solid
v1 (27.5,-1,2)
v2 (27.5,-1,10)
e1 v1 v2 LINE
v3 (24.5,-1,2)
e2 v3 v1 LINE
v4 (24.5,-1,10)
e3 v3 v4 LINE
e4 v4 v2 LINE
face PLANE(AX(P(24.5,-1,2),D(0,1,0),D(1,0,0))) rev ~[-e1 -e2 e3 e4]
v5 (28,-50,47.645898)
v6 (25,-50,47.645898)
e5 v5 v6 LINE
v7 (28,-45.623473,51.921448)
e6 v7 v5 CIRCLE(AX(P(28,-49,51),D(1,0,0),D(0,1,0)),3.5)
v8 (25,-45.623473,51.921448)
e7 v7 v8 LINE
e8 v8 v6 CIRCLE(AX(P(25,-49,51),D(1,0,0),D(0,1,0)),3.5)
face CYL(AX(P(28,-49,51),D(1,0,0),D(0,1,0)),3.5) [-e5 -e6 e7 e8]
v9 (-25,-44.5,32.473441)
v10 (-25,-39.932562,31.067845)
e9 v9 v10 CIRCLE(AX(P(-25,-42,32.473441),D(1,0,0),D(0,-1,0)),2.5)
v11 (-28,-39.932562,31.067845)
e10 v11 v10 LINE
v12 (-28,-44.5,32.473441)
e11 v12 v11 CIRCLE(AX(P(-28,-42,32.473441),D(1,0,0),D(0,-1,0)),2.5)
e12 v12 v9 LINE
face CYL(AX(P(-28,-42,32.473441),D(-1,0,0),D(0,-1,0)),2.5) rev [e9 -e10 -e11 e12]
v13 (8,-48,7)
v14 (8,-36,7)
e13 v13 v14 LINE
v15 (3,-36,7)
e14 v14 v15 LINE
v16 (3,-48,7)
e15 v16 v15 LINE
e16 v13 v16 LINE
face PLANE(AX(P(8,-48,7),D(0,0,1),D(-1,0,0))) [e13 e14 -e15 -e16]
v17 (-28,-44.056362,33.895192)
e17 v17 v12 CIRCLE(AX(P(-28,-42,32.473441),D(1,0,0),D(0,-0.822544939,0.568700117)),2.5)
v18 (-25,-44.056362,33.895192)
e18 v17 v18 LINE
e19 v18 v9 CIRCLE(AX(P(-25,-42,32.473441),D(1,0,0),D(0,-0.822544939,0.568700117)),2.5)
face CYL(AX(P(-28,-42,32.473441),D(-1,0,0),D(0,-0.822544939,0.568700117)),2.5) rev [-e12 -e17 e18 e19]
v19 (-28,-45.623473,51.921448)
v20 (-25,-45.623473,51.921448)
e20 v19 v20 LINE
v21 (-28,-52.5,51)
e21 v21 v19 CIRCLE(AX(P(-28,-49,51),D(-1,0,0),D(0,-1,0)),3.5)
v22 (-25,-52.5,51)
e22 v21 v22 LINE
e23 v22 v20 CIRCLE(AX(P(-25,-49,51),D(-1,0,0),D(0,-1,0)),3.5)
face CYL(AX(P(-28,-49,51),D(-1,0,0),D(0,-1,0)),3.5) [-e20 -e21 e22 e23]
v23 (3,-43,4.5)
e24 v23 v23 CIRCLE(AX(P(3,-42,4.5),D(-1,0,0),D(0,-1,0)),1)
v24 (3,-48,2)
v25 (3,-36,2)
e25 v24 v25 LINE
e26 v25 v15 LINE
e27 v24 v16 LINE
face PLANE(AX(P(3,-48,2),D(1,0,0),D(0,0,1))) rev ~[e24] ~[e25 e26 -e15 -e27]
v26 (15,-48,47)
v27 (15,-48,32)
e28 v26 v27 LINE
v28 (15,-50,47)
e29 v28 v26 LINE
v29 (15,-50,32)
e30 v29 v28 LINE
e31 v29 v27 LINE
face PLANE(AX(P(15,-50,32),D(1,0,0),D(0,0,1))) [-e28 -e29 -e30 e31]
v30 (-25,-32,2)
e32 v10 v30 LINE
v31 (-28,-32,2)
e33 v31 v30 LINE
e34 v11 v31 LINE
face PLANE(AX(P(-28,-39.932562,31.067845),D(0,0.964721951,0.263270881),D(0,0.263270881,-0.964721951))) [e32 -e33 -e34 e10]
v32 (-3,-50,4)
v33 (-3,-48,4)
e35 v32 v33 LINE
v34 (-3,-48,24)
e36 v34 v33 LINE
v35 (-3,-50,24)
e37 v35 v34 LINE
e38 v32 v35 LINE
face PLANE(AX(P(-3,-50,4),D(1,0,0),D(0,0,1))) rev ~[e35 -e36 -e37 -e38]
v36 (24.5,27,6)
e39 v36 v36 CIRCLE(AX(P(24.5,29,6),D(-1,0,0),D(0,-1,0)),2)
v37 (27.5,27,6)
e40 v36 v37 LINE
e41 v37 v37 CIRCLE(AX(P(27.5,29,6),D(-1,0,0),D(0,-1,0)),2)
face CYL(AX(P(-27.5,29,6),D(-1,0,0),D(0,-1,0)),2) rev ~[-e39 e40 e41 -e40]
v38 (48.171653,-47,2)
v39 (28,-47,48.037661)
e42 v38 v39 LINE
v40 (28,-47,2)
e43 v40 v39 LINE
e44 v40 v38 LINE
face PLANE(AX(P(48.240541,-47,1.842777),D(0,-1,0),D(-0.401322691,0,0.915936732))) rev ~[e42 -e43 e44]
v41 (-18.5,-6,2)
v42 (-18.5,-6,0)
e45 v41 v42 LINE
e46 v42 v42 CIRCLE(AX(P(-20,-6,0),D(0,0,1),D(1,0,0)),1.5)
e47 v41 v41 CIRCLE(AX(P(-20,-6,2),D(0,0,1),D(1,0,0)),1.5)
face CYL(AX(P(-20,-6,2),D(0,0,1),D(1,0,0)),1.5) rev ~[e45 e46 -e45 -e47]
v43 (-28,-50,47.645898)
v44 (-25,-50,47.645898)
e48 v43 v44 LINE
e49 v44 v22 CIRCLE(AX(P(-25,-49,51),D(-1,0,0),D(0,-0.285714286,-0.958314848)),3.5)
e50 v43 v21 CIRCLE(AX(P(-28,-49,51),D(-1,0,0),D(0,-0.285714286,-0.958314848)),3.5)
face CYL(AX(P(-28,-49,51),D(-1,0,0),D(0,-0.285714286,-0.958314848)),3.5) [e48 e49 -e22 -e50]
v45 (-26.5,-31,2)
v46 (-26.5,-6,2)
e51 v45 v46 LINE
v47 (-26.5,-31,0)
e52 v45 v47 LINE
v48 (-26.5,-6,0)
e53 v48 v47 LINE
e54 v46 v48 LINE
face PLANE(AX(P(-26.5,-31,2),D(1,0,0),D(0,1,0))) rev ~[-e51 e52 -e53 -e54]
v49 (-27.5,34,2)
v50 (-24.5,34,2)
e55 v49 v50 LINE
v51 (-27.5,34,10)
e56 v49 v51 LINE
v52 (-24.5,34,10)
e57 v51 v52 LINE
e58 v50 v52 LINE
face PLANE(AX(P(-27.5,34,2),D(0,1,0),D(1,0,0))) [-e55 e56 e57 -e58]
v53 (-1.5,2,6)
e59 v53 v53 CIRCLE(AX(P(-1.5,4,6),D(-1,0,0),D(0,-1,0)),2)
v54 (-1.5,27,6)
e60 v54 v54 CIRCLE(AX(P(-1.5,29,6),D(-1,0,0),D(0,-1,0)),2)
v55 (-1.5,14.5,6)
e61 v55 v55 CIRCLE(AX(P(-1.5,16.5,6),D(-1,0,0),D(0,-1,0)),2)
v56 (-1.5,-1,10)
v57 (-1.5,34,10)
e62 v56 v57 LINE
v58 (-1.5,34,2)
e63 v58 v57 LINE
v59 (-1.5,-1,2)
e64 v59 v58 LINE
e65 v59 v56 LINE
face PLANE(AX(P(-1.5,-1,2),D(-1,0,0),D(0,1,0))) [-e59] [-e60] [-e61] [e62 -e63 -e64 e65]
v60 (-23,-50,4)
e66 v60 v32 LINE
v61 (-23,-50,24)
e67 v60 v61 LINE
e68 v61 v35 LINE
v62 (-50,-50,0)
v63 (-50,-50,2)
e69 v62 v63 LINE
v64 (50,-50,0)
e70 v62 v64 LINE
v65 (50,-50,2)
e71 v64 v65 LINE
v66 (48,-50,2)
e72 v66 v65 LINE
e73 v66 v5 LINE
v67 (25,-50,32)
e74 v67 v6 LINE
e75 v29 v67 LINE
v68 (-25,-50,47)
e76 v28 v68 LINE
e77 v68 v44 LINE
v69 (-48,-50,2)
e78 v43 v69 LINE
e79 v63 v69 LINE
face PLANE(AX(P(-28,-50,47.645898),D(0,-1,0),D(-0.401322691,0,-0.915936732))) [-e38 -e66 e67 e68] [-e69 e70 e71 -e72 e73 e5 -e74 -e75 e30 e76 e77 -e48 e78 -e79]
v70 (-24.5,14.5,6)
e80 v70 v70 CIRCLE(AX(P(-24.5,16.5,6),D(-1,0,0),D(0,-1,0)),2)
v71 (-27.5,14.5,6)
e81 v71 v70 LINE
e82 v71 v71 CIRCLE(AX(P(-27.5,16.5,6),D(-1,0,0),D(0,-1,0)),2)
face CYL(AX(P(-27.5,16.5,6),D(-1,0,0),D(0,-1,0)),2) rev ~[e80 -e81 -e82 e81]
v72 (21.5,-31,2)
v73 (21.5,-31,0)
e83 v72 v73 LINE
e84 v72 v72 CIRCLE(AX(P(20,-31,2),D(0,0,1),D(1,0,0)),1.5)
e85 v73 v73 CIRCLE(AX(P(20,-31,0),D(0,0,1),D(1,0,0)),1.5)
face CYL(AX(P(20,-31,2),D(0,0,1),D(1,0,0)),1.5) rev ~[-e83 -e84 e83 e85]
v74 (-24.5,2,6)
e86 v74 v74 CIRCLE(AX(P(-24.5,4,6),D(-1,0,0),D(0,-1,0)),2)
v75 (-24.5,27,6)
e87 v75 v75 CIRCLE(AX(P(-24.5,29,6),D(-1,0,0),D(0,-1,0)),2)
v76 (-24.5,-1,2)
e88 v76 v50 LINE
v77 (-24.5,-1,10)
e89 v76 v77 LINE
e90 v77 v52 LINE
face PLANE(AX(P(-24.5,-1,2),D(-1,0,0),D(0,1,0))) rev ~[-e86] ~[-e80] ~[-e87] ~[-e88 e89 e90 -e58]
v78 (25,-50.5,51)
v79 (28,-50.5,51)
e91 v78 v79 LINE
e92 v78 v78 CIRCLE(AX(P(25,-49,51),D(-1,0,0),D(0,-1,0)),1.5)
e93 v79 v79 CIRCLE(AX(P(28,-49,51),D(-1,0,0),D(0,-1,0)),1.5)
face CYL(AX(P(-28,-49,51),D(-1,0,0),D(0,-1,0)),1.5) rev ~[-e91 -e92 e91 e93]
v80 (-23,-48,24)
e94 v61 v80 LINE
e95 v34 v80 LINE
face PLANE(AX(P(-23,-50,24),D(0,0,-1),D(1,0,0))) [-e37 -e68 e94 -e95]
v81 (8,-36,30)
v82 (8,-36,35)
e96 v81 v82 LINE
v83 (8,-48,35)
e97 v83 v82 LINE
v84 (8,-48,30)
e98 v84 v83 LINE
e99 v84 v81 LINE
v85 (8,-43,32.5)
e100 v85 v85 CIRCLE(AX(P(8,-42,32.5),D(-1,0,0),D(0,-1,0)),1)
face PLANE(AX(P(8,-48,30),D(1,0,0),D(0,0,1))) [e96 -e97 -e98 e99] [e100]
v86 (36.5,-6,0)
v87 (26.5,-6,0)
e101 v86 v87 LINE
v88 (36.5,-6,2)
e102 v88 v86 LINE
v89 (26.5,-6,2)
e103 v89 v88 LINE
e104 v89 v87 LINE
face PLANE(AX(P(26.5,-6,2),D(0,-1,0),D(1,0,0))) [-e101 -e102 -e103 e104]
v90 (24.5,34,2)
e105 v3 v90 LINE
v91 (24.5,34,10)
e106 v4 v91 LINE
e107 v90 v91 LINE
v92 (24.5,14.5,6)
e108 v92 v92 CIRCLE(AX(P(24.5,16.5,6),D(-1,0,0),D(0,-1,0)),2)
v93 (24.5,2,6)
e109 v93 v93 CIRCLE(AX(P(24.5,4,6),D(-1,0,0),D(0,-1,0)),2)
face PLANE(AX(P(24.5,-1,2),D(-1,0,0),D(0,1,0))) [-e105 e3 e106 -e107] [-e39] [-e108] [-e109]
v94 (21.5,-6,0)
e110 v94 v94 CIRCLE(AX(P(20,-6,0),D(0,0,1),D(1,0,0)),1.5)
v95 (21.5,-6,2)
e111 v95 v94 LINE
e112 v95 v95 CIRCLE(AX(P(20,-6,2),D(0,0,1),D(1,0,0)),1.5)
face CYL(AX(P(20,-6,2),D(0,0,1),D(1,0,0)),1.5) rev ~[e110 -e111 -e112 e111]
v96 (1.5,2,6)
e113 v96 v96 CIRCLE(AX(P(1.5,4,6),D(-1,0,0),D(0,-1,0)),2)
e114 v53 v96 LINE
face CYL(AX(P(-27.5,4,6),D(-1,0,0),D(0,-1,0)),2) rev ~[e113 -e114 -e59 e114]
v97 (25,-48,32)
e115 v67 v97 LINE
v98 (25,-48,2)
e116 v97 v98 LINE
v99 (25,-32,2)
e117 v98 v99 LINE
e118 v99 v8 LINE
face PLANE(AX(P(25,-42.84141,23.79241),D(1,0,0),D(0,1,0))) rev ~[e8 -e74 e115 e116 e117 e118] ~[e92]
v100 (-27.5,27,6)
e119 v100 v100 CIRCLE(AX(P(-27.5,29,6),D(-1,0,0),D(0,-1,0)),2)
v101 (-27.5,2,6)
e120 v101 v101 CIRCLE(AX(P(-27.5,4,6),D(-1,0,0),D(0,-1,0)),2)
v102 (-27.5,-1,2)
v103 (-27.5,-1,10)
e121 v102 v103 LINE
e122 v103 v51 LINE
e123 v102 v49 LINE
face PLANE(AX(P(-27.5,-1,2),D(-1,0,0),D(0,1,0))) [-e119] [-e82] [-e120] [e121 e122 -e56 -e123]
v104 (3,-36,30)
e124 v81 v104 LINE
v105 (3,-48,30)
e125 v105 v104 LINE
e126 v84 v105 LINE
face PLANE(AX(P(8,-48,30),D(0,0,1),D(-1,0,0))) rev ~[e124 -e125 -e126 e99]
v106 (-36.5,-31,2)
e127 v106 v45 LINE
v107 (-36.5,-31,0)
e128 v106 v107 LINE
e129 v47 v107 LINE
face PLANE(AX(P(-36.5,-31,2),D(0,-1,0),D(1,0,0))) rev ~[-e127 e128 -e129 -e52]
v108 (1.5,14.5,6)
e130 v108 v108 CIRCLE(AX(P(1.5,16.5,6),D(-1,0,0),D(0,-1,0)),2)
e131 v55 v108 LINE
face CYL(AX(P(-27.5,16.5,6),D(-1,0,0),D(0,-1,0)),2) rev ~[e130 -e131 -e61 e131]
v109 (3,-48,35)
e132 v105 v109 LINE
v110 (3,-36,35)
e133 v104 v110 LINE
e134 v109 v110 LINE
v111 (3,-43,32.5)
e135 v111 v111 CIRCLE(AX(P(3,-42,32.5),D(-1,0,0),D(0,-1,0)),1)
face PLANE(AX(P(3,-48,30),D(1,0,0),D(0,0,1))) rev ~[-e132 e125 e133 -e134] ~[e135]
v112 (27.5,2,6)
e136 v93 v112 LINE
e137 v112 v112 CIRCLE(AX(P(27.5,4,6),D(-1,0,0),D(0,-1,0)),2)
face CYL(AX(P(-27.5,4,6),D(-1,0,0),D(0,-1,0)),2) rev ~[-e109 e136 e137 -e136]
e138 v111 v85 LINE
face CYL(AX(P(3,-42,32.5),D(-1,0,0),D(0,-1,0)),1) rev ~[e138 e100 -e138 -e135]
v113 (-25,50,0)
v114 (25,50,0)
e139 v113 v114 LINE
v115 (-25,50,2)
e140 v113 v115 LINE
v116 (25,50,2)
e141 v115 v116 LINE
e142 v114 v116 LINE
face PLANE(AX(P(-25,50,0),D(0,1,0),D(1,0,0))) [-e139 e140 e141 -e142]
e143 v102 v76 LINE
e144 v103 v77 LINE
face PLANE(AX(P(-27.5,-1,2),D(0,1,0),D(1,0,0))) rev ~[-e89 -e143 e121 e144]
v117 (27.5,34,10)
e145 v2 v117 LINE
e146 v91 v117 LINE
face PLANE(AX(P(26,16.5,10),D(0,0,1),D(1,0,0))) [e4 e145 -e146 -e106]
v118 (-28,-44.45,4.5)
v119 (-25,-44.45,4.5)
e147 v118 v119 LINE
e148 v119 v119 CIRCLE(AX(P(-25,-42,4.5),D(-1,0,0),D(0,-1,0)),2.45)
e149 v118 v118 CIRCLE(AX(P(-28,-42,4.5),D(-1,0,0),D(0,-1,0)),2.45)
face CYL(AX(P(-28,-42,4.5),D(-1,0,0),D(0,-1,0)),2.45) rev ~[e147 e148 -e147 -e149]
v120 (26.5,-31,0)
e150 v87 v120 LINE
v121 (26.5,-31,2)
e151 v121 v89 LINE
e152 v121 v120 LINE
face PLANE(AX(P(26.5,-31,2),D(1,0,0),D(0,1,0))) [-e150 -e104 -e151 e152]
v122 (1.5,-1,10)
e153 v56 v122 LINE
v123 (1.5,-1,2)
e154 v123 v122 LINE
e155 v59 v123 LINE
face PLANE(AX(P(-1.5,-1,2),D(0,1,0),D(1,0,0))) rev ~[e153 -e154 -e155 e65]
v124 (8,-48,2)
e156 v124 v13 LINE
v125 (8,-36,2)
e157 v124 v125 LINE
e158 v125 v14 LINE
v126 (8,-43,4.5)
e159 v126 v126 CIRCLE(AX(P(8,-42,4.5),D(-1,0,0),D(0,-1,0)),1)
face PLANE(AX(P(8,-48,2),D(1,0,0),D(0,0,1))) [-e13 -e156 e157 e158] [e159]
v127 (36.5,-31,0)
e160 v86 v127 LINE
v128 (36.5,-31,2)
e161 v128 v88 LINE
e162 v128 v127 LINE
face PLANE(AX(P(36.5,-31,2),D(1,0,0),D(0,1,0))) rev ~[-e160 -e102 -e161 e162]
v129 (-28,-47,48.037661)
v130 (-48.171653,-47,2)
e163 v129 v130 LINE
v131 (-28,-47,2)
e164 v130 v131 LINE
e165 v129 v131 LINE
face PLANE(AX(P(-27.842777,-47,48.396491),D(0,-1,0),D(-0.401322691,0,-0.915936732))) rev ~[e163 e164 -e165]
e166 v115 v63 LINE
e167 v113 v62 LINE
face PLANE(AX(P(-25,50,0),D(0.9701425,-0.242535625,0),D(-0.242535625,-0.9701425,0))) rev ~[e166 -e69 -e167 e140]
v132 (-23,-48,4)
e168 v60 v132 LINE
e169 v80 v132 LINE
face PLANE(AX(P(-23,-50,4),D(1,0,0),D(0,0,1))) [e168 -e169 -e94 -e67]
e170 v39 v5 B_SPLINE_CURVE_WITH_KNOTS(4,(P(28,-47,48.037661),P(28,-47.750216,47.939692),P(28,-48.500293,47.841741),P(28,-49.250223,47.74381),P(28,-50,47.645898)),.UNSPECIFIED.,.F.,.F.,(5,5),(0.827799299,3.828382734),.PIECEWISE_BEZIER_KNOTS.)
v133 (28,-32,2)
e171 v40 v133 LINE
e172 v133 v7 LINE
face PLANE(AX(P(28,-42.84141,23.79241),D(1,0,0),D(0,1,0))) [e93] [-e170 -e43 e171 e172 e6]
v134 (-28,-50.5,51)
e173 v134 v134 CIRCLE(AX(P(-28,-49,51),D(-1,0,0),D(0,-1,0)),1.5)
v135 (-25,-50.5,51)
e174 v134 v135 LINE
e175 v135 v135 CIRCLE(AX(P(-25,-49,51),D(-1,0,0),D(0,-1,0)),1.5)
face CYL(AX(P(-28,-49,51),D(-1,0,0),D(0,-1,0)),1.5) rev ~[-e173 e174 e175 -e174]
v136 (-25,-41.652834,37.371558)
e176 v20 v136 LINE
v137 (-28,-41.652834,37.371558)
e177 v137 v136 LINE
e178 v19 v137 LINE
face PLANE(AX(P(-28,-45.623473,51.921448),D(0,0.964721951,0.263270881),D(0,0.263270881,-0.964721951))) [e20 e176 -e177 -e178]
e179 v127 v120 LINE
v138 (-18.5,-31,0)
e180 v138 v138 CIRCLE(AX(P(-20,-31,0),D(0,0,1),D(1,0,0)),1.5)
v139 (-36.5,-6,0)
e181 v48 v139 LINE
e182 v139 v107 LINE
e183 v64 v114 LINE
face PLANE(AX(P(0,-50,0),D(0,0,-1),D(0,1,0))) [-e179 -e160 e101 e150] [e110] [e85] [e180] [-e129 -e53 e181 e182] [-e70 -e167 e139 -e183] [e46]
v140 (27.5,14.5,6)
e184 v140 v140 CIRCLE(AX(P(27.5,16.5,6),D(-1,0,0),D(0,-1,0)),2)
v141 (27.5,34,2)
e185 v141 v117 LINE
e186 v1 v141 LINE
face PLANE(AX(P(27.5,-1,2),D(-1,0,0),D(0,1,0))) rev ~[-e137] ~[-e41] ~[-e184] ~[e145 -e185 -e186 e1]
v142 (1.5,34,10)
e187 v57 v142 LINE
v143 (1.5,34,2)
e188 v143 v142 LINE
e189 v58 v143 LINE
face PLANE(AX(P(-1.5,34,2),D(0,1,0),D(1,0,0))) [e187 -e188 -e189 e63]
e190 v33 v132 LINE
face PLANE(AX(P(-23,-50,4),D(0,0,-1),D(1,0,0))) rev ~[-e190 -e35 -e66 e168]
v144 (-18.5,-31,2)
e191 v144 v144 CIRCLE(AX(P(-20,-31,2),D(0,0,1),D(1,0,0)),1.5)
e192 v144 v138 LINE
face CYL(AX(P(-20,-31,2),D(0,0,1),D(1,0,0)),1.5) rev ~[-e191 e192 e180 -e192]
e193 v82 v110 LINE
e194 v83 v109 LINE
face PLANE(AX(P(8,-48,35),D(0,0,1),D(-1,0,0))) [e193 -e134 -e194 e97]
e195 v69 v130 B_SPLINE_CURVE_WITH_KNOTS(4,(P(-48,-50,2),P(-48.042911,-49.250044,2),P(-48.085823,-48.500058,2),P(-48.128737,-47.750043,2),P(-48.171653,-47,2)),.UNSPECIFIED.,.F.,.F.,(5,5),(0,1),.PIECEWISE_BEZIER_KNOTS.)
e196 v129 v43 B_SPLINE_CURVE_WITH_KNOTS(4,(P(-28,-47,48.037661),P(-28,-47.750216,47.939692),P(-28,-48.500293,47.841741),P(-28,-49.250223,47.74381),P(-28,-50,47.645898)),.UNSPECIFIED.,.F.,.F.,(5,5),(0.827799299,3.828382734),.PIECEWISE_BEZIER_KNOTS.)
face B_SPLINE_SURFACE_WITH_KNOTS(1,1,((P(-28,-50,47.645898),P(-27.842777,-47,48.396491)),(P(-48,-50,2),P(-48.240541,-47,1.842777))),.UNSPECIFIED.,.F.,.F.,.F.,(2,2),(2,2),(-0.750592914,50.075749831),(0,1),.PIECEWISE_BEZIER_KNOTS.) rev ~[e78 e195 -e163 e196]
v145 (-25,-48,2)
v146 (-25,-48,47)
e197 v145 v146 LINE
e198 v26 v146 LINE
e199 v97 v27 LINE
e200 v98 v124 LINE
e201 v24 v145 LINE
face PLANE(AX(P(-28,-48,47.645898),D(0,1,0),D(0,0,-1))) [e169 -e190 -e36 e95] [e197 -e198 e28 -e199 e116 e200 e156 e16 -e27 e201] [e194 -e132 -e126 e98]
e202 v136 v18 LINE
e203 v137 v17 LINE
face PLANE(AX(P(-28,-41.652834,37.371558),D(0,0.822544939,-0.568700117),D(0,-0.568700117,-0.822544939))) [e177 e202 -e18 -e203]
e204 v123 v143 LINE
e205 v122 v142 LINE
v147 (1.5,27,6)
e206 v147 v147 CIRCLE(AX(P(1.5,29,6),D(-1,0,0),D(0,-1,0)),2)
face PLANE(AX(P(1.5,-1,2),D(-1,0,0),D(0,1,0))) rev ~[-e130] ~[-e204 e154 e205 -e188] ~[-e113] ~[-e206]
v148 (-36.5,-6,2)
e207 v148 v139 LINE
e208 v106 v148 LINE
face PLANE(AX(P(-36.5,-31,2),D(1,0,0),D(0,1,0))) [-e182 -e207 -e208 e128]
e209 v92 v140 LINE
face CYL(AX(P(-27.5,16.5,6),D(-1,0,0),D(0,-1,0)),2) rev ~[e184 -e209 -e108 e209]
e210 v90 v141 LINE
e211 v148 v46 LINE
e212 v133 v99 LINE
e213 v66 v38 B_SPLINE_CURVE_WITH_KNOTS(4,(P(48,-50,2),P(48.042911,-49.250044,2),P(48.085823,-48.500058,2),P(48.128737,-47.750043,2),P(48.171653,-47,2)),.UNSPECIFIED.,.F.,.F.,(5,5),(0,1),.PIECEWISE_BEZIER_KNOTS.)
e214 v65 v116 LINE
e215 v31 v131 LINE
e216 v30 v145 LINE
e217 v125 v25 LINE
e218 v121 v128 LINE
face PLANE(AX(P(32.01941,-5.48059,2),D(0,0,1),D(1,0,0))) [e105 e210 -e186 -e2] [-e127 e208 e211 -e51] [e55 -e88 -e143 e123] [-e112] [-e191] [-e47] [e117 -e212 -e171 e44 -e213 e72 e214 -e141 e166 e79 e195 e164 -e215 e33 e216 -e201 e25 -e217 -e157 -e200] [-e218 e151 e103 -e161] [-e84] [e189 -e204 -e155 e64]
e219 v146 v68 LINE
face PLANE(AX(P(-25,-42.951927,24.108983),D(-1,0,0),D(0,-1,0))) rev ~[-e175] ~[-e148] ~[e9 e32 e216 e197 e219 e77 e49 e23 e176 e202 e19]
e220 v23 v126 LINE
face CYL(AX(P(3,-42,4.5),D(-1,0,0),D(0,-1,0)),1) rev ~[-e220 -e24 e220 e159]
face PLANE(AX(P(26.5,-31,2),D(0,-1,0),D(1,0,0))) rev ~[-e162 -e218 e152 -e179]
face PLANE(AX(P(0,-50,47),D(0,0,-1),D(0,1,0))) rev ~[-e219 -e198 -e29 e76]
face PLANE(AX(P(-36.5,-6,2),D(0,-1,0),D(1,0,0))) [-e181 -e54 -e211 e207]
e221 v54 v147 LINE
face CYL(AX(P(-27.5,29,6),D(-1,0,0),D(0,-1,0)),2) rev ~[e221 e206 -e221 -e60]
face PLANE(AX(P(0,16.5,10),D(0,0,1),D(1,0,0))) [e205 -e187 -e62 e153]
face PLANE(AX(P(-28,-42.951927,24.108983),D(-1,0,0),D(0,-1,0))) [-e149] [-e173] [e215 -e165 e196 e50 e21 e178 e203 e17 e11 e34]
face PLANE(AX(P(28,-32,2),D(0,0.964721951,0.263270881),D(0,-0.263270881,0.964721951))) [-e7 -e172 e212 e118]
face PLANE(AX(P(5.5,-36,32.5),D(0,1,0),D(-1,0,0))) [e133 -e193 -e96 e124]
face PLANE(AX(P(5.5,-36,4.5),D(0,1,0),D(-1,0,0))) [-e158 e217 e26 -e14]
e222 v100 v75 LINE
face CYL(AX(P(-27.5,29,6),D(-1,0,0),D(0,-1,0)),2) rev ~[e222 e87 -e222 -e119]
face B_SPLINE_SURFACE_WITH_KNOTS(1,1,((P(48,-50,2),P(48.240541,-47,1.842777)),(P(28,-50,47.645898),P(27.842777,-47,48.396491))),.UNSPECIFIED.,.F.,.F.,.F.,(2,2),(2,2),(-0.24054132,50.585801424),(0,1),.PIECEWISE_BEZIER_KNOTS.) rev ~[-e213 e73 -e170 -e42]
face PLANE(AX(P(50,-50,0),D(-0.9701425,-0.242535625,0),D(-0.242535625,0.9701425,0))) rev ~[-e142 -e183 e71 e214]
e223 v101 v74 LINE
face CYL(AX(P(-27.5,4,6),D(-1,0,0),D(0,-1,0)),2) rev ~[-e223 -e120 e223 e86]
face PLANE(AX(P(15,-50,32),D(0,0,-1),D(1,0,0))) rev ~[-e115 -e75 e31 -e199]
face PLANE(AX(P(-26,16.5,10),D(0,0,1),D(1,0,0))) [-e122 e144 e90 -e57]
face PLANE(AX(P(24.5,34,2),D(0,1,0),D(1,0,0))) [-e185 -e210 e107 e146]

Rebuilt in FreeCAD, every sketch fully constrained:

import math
import FreeCAD as App
import Part
import Sketcher
from FreeCAD import Vector

doc = App.newDocument("Part")
params = doc.addObject("Spreadsheet::Sheet", "Params")
for row, (alias, value) in enumerate([
    ("sketch1_width", "50 mm"),
    ("sketch1_width2", "100 mm"),
    ("pad1_length", "2 mm"),
    ("sketch2_width", "2 mm"),
    ("sketch2_height", "47 mm"),
    ("pad2_length", "56 mm"),
    ("sketch3_radius", "3.5 mm"),
    ("sketch3_width", "2 mm"),
    ("pad3_length", "3 mm"),
    ("sketch4_radius", "3.5 mm"),
    ("sketch4_width", "2 mm"),
    ("pad4_length", "3 mm"),
    ("sketch5_diameter", "3 mm"),
    ("pocket1_length", "60 mm"),
    ("sketch6_width", "5 mm"),
    ("pad5_length", "12 mm"),
    ("sketch7_diameter", "2 mm"),
    ("pocket2_length", "25 mm"),
    ("sketch8_diameter", "2 mm"),
    ("pocket3_length", "25 mm"),
    ("sketch9_width", "10 mm"),
    ("sketch9_width2", "20 mm"),
    ("sketch9_height", "15 mm"),
    ("pocket4_length", "25 mm"),
    ("sketch10_diameter", "3 mm"),
    ("sketch10_width", "10 mm"),
    ("sketch10_height", "25 mm"),
    ("pocket5_length", "25 mm"),
    ("sketch11_width", "3 mm"),
    ("sketch11_height", "35 mm"),
    ("pad6_length", "8 mm"),
    ("sketch12_diameter", "4 mm"),
    ("pocket6_length", "100 mm"),
    ("sketch13_width", "20 mm"),
    ("pad7_length", "3 mm"),
    ("pad7_taper", "3 deg"),
    ("sketch14_width", "20 mm"),
    ("pad8_length", "3 mm"),
    ("pad8_taper", "3 deg"),
    ("sketch15_radius", "3.5 mm"),
    ("sketch15_width", "16 mm"),
    ("pad9_length", "3 mm"),
    ("sketch16_diameter", "4.9 mm"),
    ("sketch16_radius", "2.5 mm"),
    ("sketch16_radius2", "3.5 mm"),
    ("sketch16_width", "16 mm"),
    ("pad10_length", "3 mm"),
], start=1):
    params.set(f"A{row}", alias)
    params.set(f"B{row}", "=" + value)
    params.setAlias(f"B{row}", alias)

body = doc.addObject("PartDesign::Body", "Body")

# Sketch on XY plane
sketch1 = doc.addObject("Sketcher::SketchObject", "Sketch")
body.addObject(sketch1)
sketch1.AttachmentSupport = (doc.XY_Plane, [""])
sketch1.MapMode = "FlatFace"
sketch1.addGeometry([
    Part.LineSegment(Vector(50, -50, 0), Vector(25, 50, 0)),
    Part.LineSegment(Vector(25, 50, 0), Vector(-25, 50, 0)),
    Part.LineSegment(Vector(-25, 50, 0), Vector(-50, -50, 0)),
    Part.LineSegment(Vector(-50, -50, 0), Vector(50, -50, 0)),
], False)
sketch1.addConstraint([
    Sketcher.Constraint("Coincident", 0, 2, 1, 1),
    Sketcher.Constraint("Coincident", 1, 2, 2, 1),
    Sketcher.Constraint("Coincident", 2, 2, 3, 1),
    Sketcher.Constraint("Coincident", 3, 2, 0, 1),
    Sketcher.Constraint("Horizontal", 1),
    Sketcher.Constraint("Horizontal", 3),
    Sketcher.Constraint("Equal", 0, 2),
    Sketcher.Constraint("DistanceX", 1, 2, 1, 1, 50.0),
    Sketcher.Constraint("DistanceX", 3, 1, 3, 2, 100.0),
    Sketcher.Constraint("DistanceX", -1, 1, 0, 2, 25.0),
    Sketcher.Constraint("DistanceY", -1, 1, 0, 2, 50.0),
    Sketcher.Constraint("DistanceY", 2, 2, -1, 1, 50.0),
])
sketch1.setExpression("Constraints[7]", "Params.sketch1_width")
sketch1.setExpression("Constraints[8]", "Params.sketch1_width2")
pad1 = doc.addObject("PartDesign::Pad", "Pad")
body.addObject(pad1)
pad1.Profile = sketch1
pad1.setExpression("Length", "Params.pad1_length")

# Sketch on YZ plane
sketch2 = doc.addObject("Sketcher::SketchObject", "Sketch001")
body.addObject(sketch2)
sketch2.AttachmentSupport = (doc.YZ_Plane, [""])
sketch2.MapMode = "FlatFace"
sketch2.addGeometry([
    Part.LineSegment(Vector(-50, 47, 0), Vector(-50, 0, 0)),
    Part.LineSegment(Vector(-50, 0, 0), Vector(-48, 0, 0)),
    Part.LineSegment(Vector(-48, 0, 0), Vector(-48, 47, 0)),
    Part.LineSegment(Vector(-48, 47, 0), Vector(-50, 47, 0)),
], False)
sketch2.addConstraint([
    Sketcher.Constraint("Coincident", 0, 2, 1, 1),
    Sketcher.Constraint("Coincident", 1, 2, 2, 1),
    Sketcher.Constraint("Coincident", 2, 2, 3, 1),
    Sketcher.Constraint("Coincident", 3, 2, 0, 1),
    Sketcher.Constraint("Vertical", 0),
    Sketcher.Constraint("Horizontal", 1),
    Sketcher.Constraint("Vertical", 2),
    Sketcher.Constraint("Horizontal", 3),
    Sketcher.Constraint("PointOnObject", 0, 2, -1),
    Sketcher.Constraint("DistanceX", 1, 1, 1, 2, 2.0),
    Sketcher.Constraint("DistanceY", 0, 2, 0, 1, 47.0),
    Sketcher.Constraint("DistanceX", 0, 2, -1, 1, 50.0),
])
sketch2.setExpression("Constraints[9]", "Params.sketch2_width")
sketch2.setExpression("Constraints[10]", "Params.sketch2_height")
pad2 = doc.addObject("PartDesign::Pad", "Pad001")
body.addObject(pad2)
pad2.Profile = sketch2
pad2.setExpression("Length", "Params.pad2_length")
pad2.Midplane = True

# Sketch on YZ plane
sketch3 = doc.addObject("Sketcher::SketchObject", "Sketch002")
body.addObject(sketch3)
sketch3.AttachmentSupport = (doc.YZ_Plane, [""])
sketch3.MapMode = "FlatFace"
sketch3.AttachmentOffset = App.Placement(Vector(0, 0, 28), App.Rotation())
sketch3.addGeometry([
    Part.LineSegment(Vector(-50, 47.6, 0), Vector(-50, 47, 0)),  # 0
    Part.LineSegment(Vector(-50, 47, 0), Vector(-48, 47, 0)),  # 1
    Part.LineSegment(Vector(-48, 47, 0), Vector(-48, 47.6, 0)),  # 2
    Part.ArcOfCircle(Part.Circle(Vector(-49, 51, 0), Vector(0, 0, 1), 3.5), math.radians(-73), math.radians(0)),  # 3
    Part.ArcOfCircle(Part.Circle(Vector(-49, 51, 0), Vector(0, 0, 1), 3.5), math.radians(0), math.radians(253)),  # 4
], False)
sketch3.addConstraint([
    Sketcher.Constraint("Coincident", 0, 2, 1, 1),
    Sketcher.Constraint("Coincident", 1, 2, 2, 1),
    Sketcher.Constraint("Coincident", 2, 2, 3, 1),
    Sketcher.Constraint("Tangent", 3, 2, 4, 1),
    Sketcher.Constraint("Coincident", 4, 2, 0, 1),
    Sketcher.Constraint("Vertical", 0),
    Sketcher.Constraint("Horizontal", 1),
    Sketcher.Constraint("Vertical", 2),
    Sketcher.Constraint("Equal", 3, 4),
    Sketcher.Constraint("Horizontal", 4, 3, 3, 2),
    Sketcher.Constraint("Horizontal", 2, 2, 4, 2),
    Sketcher.Constraint("Radius", 3, 3.5),
    Sketcher.Constraint("DistanceX", 1, 1, 1, 2, 2.0),
    Sketcher.Constraint("DistanceX", 3, 3, -1, 1, 49.0),
    Sketcher.Constraint("DistanceY", -1, 1, 3, 3, 51.0),
    Sketcher.Constraint("DistanceY", -1, 1, 0, 2, 47.0),
])
sketch3.setExpression("Constraints[11]", "Params.sketch3_radius")
sketch3.setExpression("Constraints[12]", "Params.sketch3_width")
pad3 = doc.addObject("PartDesign::Pad", "Pad002")
body.addObject(pad3)
pad3.Profile = sketch3
pad3.setExpression("Length", "Params.pad3_length")
pad3.Reversed = True

# Sketch on YZ plane
sketch4 = doc.addObject("Sketcher::SketchObject", "Sketch003")
body.addObject(sketch4)
sketch4.AttachmentSupport = (doc.YZ_Plane, [""])
sketch4.MapMode = "FlatFace"
sketch4.AttachmentOffset = App.Placement(Vector(0, 0, -28), App.Rotation())
sketch4.addGeometry([
    Part.LineSegment(Vector(-48, 47.6, 0), Vector(-48, 47, 0)),  # 0
    Part.LineSegment(Vector(-48, 47, 0), Vector(-50, 47, 0)),  # 1
    Part.LineSegment(Vector(-50, 47, 0), Vector(-50, 47.6, 0)),  # 2
    Part.ArcOfCircle(Part.Circle(Vector(-49, 51, 0), Vector(0, 0, 1), 3.5), math.radians(180), math.radians(253)),  # 3
    Part.ArcOfCircle(Part.Circle(Vector(-49, 51, 0), Vector(0, 0, 1), 3.5), math.radians(-73), math.radians(180)),  # 4
], False)
sketch4.addConstraint([
    Sketcher.Constraint("Coincident", 0, 2, 1, 1),
    Sketcher.Constraint("Coincident", 1, 2, 2, 1),
    Sketcher.Constraint("Coincident", 2, 2, 3, 2),
    Sketcher.Constraint("Tangent", 3, 1, 4, 2),
    Sketcher.Constraint("Coincident", 4, 1, 0, 1),
    Sketcher.Constraint("Vertical", 0),
    Sketcher.Constraint("Horizontal", 1),
    Sketcher.Constraint("Vertical", 2),
    Sketcher.Constraint("Equal", 3, 4),
    Sketcher.Constraint("Horizontal", 4, 3, 3, 1),
    Sketcher.Constraint("Horizontal", 2, 2, 4, 1),
    Sketcher.Constraint("Radius", 3, 3.5),
    Sketcher.Constraint("DistanceX", 1, 2, 1, 1, 2.0),
    Sketcher.Constraint("DistanceX", 3, 3, -1, 1, 49.0),
    Sketcher.Constraint("DistanceY", -1, 1, 3, 3, 51.0),
    Sketcher.Constraint("DistanceY", -1, 1, 0, 2, 47.0),
])
sketch4.setExpression("Constraints[11]", "Params.sketch4_radius")
sketch4.setExpression("Constraints[12]", "Params.sketch4_width")
pad4 = doc.addObject("PartDesign::Pad", "Pad003")
body.addObject(pad4)
pad4.Profile = sketch4
pad4.setExpression("Length", "Params.pad4_length")

# Sketch on YZ plane
sketch5 = doc.addObject("Sketcher::SketchObject", "Sketch004")
body.addObject(sketch5)
sketch5.AttachmentSupport = (doc.YZ_Plane, [""])
sketch5.MapMode = "FlatFace"
sketch5.AttachmentOffset = App.Placement(Vector(0, 0, -28), App.Rotation())
sketch5.addGeometry(Part.Circle(Vector(-49, 51, 0), Vector(0, 0, 1), 1.5), False)
sketch5.addConstraint([
    Sketcher.Constraint("Diameter", 0, 3.0),
    Sketcher.Constraint("DistanceX", 0, 3, -1, 1, 49.0),
    Sketcher.Constraint("DistanceY", -1, 1, 0, 3, 51.0),
])
sketch5.setExpression("Constraints[0]", "Params.sketch5_diameter")
pocket1 = doc.addObject("PartDesign::Pocket", "Pocket")
body.addObject(pocket1)
pocket1.Profile = sketch5
pocket1.setExpression("Length", "Params.pocket1_length")
pocket1.Reversed = True

# Sketch on XZ plane
sketch6 = doc.addObject("Sketcher::SketchObject", "Sketch005")
body.addObject(sketch6)
sketch6.AttachmentSupport = (doc.XZ_Plane, [""])
sketch6.MapMode = "FlatFace"
sketch6.AttachmentOffset = App.Placement(Vector(0, 0, 48), App.Rotation())
sketch6.addGeometry([
    Part.LineSegment(Vector(8, 35, 0), Vector(8, 30, 0)),  # 0
    Part.LineSegment(Vector(8, 30, 0), Vector(3, 30, 0)),  # 1
    Part.LineSegment(Vector(3, 30, 0), Vector(3, 35, 0)),  # 2
    Part.LineSegment(Vector(3, 35, 0), Vector(8, 35, 0)),  # 3
    Part.LineSegment(Vector(8, 7, 0), Vector(8, 2, 0)),  # 4
    Part.LineSegment(Vector(8, 2, 0), Vector(3, 2, 0)),  # 5
    Part.LineSegment(Vector(3, 2, 0), Vector(3, 7, 0)),  # 6
    Part.LineSegment(Vector(3, 7, 0), Vector(8, 7, 0)),  # 7
], False)
sketch6.addConstraint([
    Sketcher.Constraint("Coincident", 0, 2, 1, 1),
    Sketcher.Constraint("Coincident", 1, 2, 2, 1),
    Sketcher.Constraint("Coincident", 2, 2, 3, 1),
    Sketcher.Constraint("Coincident", 3, 2, 0, 1),
    Sketcher.Constraint("Coincident", 4, 2, 5, 1),
    Sketcher.Constraint("Coincident", 5, 2, 6, 1),
    Sketcher.Constraint("Coincident", 6, 2, 7, 1),
    Sketcher.Constraint("Coincident", 7, 2, 4, 1),
    Sketcher.Constraint("Vertical", 0),
    Sketcher.Constraint("Horizontal", 1),
    Sketcher.Constraint("Vertical", 2),
    Sketcher.Constraint("Horizontal", 3),
    Sketcher.Constraint("Vertical", 4),
    Sketcher.Constraint("Horizontal", 5),
    Sketcher.Constraint("Vertical", 6),
    Sketcher.Constraint("Horizontal", 7),
    Sketcher.Constraint("Vertical", 3, 2, 4, 2),
    Sketcher.Constraint("Vertical", 2, 2, 5, 2),
    Sketcher.Constraint("Equal", 7, 0),
    Sketcher.Constraint("Equal", 2, 4),
    Sketcher.Constraint("DistanceX", 1, 2, 1, 1, 5.0),
    Sketcher.Constraint("DistanceX", -1, 1, 0, 2, 8.0),
    Sketcher.Constraint("DistanceY", -1, 1, 0, 2, 30.0),
    Sketcher.Constraint("DistanceY", -1, 1, 4, 2, 2.0),
])
sketch6.setExpression("Constraints[20]", "Params.sketch6_width")
pad5 = doc.addObject("PartDesign::Pad", "Pad004")
body.addObject(pad5)
pad5.Profile = sketch6
pad5.setExpression("Length", "Params.pad5_length")
pad5.Reversed = True

# Sketch on YZ plane
sketch7 = doc.addObject("Sketcher::SketchObject", "Sketch006")
body.addObject(sketch7)
sketch7.AttachmentSupport = (doc.YZ_Plane, [""])
sketch7.MapMode = "FlatFace"
sketch7.AttachmentOffset = App.Placement(Vector(0, 0, 3), App.Rotation())
sketch7.addGeometry(Part.Circle(Vector(-42, 4.5, 0), Vector(0, 0, 1), 1), False)
sketch7.addConstraint([
    Sketcher.Constraint("Diameter", 0, 2.0),
    Sketcher.Constraint("DistanceX", 0, 3, -1, 1, 42.0),
    Sketcher.Constraint("DistanceY", -1, 1, 0, 3, 4.5),
])
sketch7.setExpression("Constraints[0]", "Params.sketch7_diameter")
pocket2 = doc.addObject("PartDesign::Pocket", "Pocket001")
body.addObject(pocket2)
pocket2.Profile = sketch7
pocket2.setExpression("Length", "Params.pocket2_length")
pocket2.Reversed = True

# Sketch on YZ plane
sketch8 = doc.addObject("Sketcher::SketchObject", "Sketch007")
body.addObject(sketch8)
sketch8.AttachmentSupport = (doc.YZ_Plane, [""])
sketch8.MapMode = "FlatFace"
sketch8.AttachmentOffset = App.Placement(Vector(0, 0, 3), App.Rotation())
sketch8.addGeometry(Part.Circle(Vector(-42, 32.5, 0), Vector(0, 0, 1), 1), False)
sketch8.addConstraint([
    Sketcher.Constraint("Diameter", 0, 2.0),
    Sketcher.Constraint("DistanceX", 0, 3, -1, 1, 42.0),
    Sketcher.Constraint("DistanceY", -1, 1, 0, 3, 32.5),
])
sketch8.setExpression("Constraints[0]", "Params.sketch8_diameter")
pocket3 = doc.addObject("PartDesign::Pocket", "Pocket002")
body.addObject(pocket3)
pocket3.Profile = sketch8
pocket3.setExpression("Length", "Params.pocket3_length")
pocket3.Reversed = True

# Sketch on XZ plane
sketch9 = doc.addObject("Sketcher::SketchObject", "Sketch008")
body.addObject(sketch9)
sketch9.AttachmentSupport = (doc.XZ_Plane, [""])
sketch9.MapMode = "FlatFace"
sketch9.AttachmentOffset = App.Placement(Vector(0, 0, 50), App.Rotation())
sketch9.addGeometry([
    Part.LineSegment(Vector(15, 47, 0), Vector(15, 32, 0)),  # 0
    Part.LineSegment(Vector(15, 32, 0), Vector(25, 32, 0)),  # 1
    Part.LineSegment(Vector(25, 32, 0), Vector(25, 47, 0)),  # 2
    Part.LineSegment(Vector(25, 47, 0), Vector(15, 47, 0)),  # 3
    Part.LineSegment(Vector(-23, 24, 0), Vector(-23, 4, 0)),  # 4
    Part.LineSegment(Vector(-23, 4, 0), Vector(-3, 4, 0)),  # 5
    Part.LineSegment(Vector(-3, 4, 0), Vector(-3, 24, 0)),  # 6
    Part.LineSegment(Vector(-3, 24, 0), Vector(-23, 24, 0)),  # 7
], False)
sketch9.addConstraint([
    Sketcher.Constraint("Coincident", 0, 2, 1, 1),
    Sketcher.Constraint("Coincident", 1, 2, 2, 1),
    Sketcher.Constraint("Coincident", 2, 2, 3, 1),
    Sketcher.Constraint("Coincident", 3, 2, 0, 1),
    Sketcher.Constraint("Coincident", 4, 2, 5, 1),
    Sketcher.Constraint("Coincident", 5, 2, 6, 1),
    Sketcher.Constraint("Coincident", 6, 2, 7, 1),
    Sketcher.Constraint("Coincident", 7, 2, 4, 1),
    Sketcher.Constraint("Vertical", 0),
    Sketcher.Constraint("Horizontal", 1),
    Sketcher.Constraint("Vertical", 2),
    Sketcher.Constraint("Horizontal", 3),
    Sketcher.Constraint("Vertical", 4),
    Sketcher.Constraint("Horizontal", 5),
    Sketcher.Constraint("Vertical", 6),
    Sketcher.Constraint("Horizontal", 7),
    Sketcher.Constraint("Equal", 7, 4),
    Sketcher.Constraint("DistanceX", 1, 1, 1, 2, 10.0),
    Sketcher.Constraint("DistanceX", 5, 1, 5, 2, 20.0),
    Sketcher.Constraint("DistanceY", 0, 2, 0, 1, 15.0),
    Sketcher.Constraint("DistanceX", -1, 1, 0, 2, 15.0),
    Sketcher.Constraint("DistanceY", -1, 1, 0, 2, 32.0),
    Sketcher.Constraint("DistanceX", 4, 2, -1, 1, 23.0),
    Sketcher.Constraint("DistanceY", -1, 1, 4, 2, 4.0),
])
sketch9.setExpression("Constraints[17]", "Params.sketch9_width")
sketch9.setExpression("Constraints[18]", "Params.sketch9_width2")
sketch9.setExpression("Constraints[19]", "Params.sketch9_height")
pocket4 = doc.addObject("PartDesign::Pocket", "Pocket003")
body.addObject(pocket4)
pocket4.Profile = sketch9
pocket4.setExpression("Length", "Params.pocket4_length")

# Sketch on XY plane
sketch10 = doc.addObject("Sketcher::SketchObject", "Sketch009")
body.addObject(sketch10)
sketch10.AttachmentSupport = (doc.XY_Plane, [""])
sketch10.MapMode = "FlatFace"
sketch10.AttachmentOffset = App.Placement(Vector(0, 0, 2), App.Rotation())
sketch10.addGeometry([
    Part.Circle(Vector(-20, -31, 0), Vector(0, 0, 1), 1.5),  # 0
    Part.Circle(Vector(-20, -6, 0), Vector(0, 0, 1), 1.5),  # 1
    Part.Circle(Vector(20, -31, 0), Vector(0, 0, 1), 1.5),  # 2
    Part.Circle(Vector(20, -6, 0), Vector(0, 0, 1), 1.5),  # 3
    Part.LineSegment(Vector(-36.5, -6, 0), Vector(-36.5, -31, 0)),  # 4
    Part.LineSegment(Vector(-36.5, -31, 0), Vector(-26.5, -31, 0)),  # 5
    Part.LineSegment(Vector(-26.5, -31, 0), Vector(-26.5, -6, 0)),  # 6
    Part.LineSegment(Vector(-26.5, -6, 0), Vector(-36.5, -6, 0)),  # 7
    Part.LineSegment(Vector(26.5, -6, 0), Vector(26.5, -31, 0)),  # 8
    Part.LineSegment(Vector(26.5, -31, 0), Vector(36.5, -31, 0)),  # 9
    Part.LineSegment(Vector(36.5, -31, 0), Vector(36.5, -6, 0)),  # 10
    Part.LineSegment(Vector(36.5, -6, 0), Vector(26.5, -6, 0)),  # 11
], False)
sketch10.addConstraint([
    Sketcher.Constraint("Coincident", 4, 2, 5, 1),
    Sketcher.Constraint("Coincident", 5, 2, 6, 1),
    Sketcher.Constraint("Coincident", 6, 2, 7, 1),
    Sketcher.Constraint("Coincident", 7, 2, 4, 1),
    Sketcher.Constraint("Coincident", 8, 2, 9, 1),
    Sketcher.Constraint("Coincident", 9, 2, 10, 1),
    Sketcher.Constraint("Coincident", 10, 2, 11, 1),
    Sketcher.Constraint("Coincident", 11, 2, 8, 1),
    Sketcher.Constraint("Vertical", 4),
    Sketcher.Constraint("Horizontal", 5),
    Sketcher.Constraint("Vertical", 6),
    Sketcher.Constraint("Horizontal", 7),
    Sketcher.Constraint("Vertical", 8),
    Sketcher.Constraint("Horizontal", 9),
    Sketcher.Constraint("Vertical", 10),
    Sketcher.Constraint("Horizontal", 11),
    Sketcher.Constraint("Equal", 0, 1),
    Sketcher.Constraint("Equal", 1, 2),
    Sketcher.Constraint("Equal", 2, 3),
    Sketcher.Constraint("Symmetric", 0, 3, 2, 3, -2),
    Sketcher.Constraint("Symmetric", 1, 3, 3, 3, -2),
    Sketcher.Constraint("Symmetric", 5, 2, 8, 2, -2),
    Sketcher.Constraint("Symmetric", 7, 2, 10, 2, -2),
    Sketcher.Constraint("Horizontal", 2, 3, 4, 2),
    Sketcher.Constraint("Horizontal", 3, 3, 6, 2),
    Sketcher.Constraint("Vertical", 0, 3, 1, 3),
    Sketcher.Constraint("Diameter", 0, 3.0),
    Sketcher.Constraint("DistanceX", 5, 1, 5, 2, 10.0),
    Sketcher.Constraint("DistanceY", 4, 2, 4, 1, 25.0),
    Sketcher.Constraint("DistanceX", 0, 3, -1, 1, 20.0),
    Sketcher.Constraint("DistanceY", 0, 3, -1, 1, 31.0),
    Sketcher.Constraint("DistanceX", 5, 2, 8, 2, 53.0),
])
sketch10.setExpression("Constraints[26]", "Params.sketch10_diameter")
sketch10.setExpression("Constraints[27]", "Params.sketch10_width")
sketch10.setExpression("Constraints[28]", "Params.sketch10_height")
pocket5 = doc.addObject("PartDesign::Pocket", "Pocket004")
body.addObject(pocket5)
pocket5.Profile = sketch10
pocket5.setExpression("Length", "Params.pocket5_length")

# Sketch on XY plane
sketch11 = doc.addObject("Sketcher::SketchObject", "Sketch010")
body.addObject(sketch11)
sketch11.AttachmentSupport = (doc.XY_Plane, [""])
sketch11.MapMode = "FlatFace"
sketch11.AttachmentOffset = App.Placement(Vector(0, 0, 2), App.Rotation())
sketch11.addGeometry([
    Part.LineSegment(Vector(-27.5, 34, 0), Vector(-27.5, -1, 0)),  # 0
    Part.LineSegment(Vector(-27.5, -1, 0), Vector(-24.5, -1, 0)),  # 1
    Part.LineSegment(Vector(-24.5, -1, 0), Vector(-24.5, 34, 0)),  # 2
    Part.LineSegment(Vector(-24.5, 34, 0), Vector(-27.5, 34, 0)),  # 3
    Part.LineSegment(Vector(-1.5, 34, 0), Vector(-1.5, -1, 0)),  # 4
    Part.LineSegment(Vector(-1.5, -1, 0), Vector(1.5, -1, 0)),  # 5
    Part.LineSegment(Vector(1.5, -1, 0), Vector(1.5, 34, 0)),  # 6
    Part.LineSegment(Vector(1.5, 34, 0), Vector(-1.5, 34, 0)),  # 7
    Part.LineSegment(Vector(24.5, 34, 0), Vector(24.5, -1, 0)),  # 8
    Part.LineSegment(Vector(24.5, -1, 0), Vector(27.5, -1, 0)),  # 9
    Part.LineSegment(Vector(27.5, -1, 0), Vector(27.5, 34, 0)),  # 10
    Part.LineSegment(Vector(27.5, 34, 0), Vector(24.5, 34, 0)),  # 11
], False)
sketch11.addConstraint([
    Sketcher.Constraint("Coincident", 0, 2, 1, 1),
    Sketcher.Constraint("Coincident", 1, 2, 2, 1),
    Sketcher.Constraint("Coincident", 2, 2, 3, 1),
    Sketcher.Constraint("Coincident", 3, 2, 0, 1),
    Sketcher.Constraint("Coincident", 4, 2, 5, 1),
    Sketcher.Constraint("Coincident", 5, 2, 6, 1),
    Sketcher.Constraint("Coincident", 6, 2, 7, 1),
    Sketcher.Constraint("Coincident", 7, 2, 4, 1),
    Sketcher.Constraint("Coincident", 8, 2, 9, 1),
    Sketcher.Constraint("Coincident", 9, 2, 10, 1),
    Sketcher.Constraint("Coincident", 10, 2, 11, 1),
    Sketcher.Constraint("Coincident", 11, 2, 8, 1),
    Sketcher.Constraint("Vertical", 0),
    Sketcher.Constraint("Horizontal", 1),
    Sketcher.Constraint("Vertical", 2),
    Sketcher.Constraint("Horizontal", 3),
    Sketcher.Constraint("Vertical", 4),
    Sketcher.Constraint("Horizontal", 5),
    Sketcher.Constraint("Vertical", 6),
    Sketcher.Constraint("Horizontal", 7),
    Sketcher.Constraint("Vertical", 8),
    Sketcher.Constraint("Horizontal", 9),
    Sketcher.Constraint("Vertical", 10),
    Sketcher.Constraint("Horizontal", 11),
    Sketcher.Constraint("Symmetric", 1, 2, 8, 2, -2),
    Sketcher.Constraint("Symmetric", 3, 2, 10, 2, -2),
    Sketcher.Constraint("Horizontal", 1, 2, 4, 2),
    Sketcher.Constraint("Horizontal", 3, 2, 6, 2),
    Sketcher.Constraint("Equal", 3, 5),
    Sketcher.Constraint("DistanceX", 1, 1, 1, 2, 3.0),
    Sketcher.Constraint("DistanceY", 0, 2, 0, 1, 35.0),
    Sketcher.Constraint("DistanceY", 0, 2, -1, 1, 1.0),
    Sketcher.Constraint("DistanceX", 1, 2, 4, 2, 23.0),
    Sketcher.Constraint("DistanceX", 5, 2, 8, 2, 23.0),
])
sketch11.setExpression("Constraints[29]", "Params.sketch11_width")
sketch11.setExpression("Constraints[30]", "Params.sketch11_height")
pad6 = doc.addObject("PartDesign::Pad", "Pad005")
body.addObject(pad6)
pad6.Profile = sketch11
pad6.setExpression("Length", "Params.pad6_length")

# Sketch on YZ plane
sketch12 = doc.addObject("Sketcher::SketchObject", "Sketch011")
body.addObject(sketch12)
sketch12.AttachmentSupport = (doc.YZ_Plane, [""])
sketch12.MapMode = "FlatFace"
sketch12.AttachmentOffset = App.Placement(Vector(0, 0, -27.5), App.Rotation())
sketch12.addGeometry([
    Part.Circle(Vector(29, 6, 0), Vector(0, 0, 1), 2),
    Part.Circle(Vector(16.5, 6, 0), Vector(0, 0, 1), 2),
    Part.Circle(Vector(4, 6, 0), Vector(0, 0, 1), 2),
], False)
sketch12.addConstraint([
    Sketcher.Constraint("Equal", 0, 1),
    Sketcher.Constraint("Equal", 1, 2),
    Sketcher.Constraint("Horizontal", 0, 3, 1, 3),
    Sketcher.Constraint("Horizontal", 1, 3, 2, 3),
    Sketcher.Constraint("Diameter", 0, 4.0),
    Sketcher.Constraint("DistanceX", -1, 1, 0, 3, 29.0),
    Sketcher.Constraint("DistanceY", -1, 1, 0, 3, 6.0),
    Sketcher.Constraint("DistanceX", -1, 1, 2, 3, 4.0),
    Sketcher.Constraint("DistanceX", -1, 1, 1, 3, 16.5),
])
sketch12.setExpression("Constraints[4]", "Params.sketch12_diameter")
pocket6 = doc.addObject("PartDesign::Pocket", "Pocket005")
body.addObject(pocket6)
pocket6.Profile = sketch12
pocket6.setExpression("Length", "Params.pocket6_length")
pocket6.Reversed = True
body2 = doc.addObject("PartDesign::Body", "Body001")

# Sketch on XZ plane
sketch13 = doc.addObject("Sketcher::SketchObject", "Sketch012")
body2.addObject(sketch13)
sketch13.AttachmentSupport = (doc.getObject("XZ_Plane001"), [""])
sketch13.MapMode = "FlatFace"
sketch13.AttachmentOffset = App.Placement(Vector(0, 0, 50), App.Rotation())
sketch13.addGeometry([
    Part.LineSegment(Vector(48, 2, 0), Vector(28, 48, 0)),
    Part.LineSegment(Vector(28, 48, 0), Vector(28, 2, 0)),
    Part.LineSegment(Vector(28, 2, 0), Vector(48, 2, 0)),
], False)
sketch13.addConstraint([
    Sketcher.Constraint("Coincident", 0, 2, 1, 1),
    Sketcher.Constraint("Coincident", 1, 2, 2, 1),
    Sketcher.Constraint("Coincident", 2, 2, 0, 1),
    Sketcher.Constraint("Vertical", 1),
    Sketcher.Constraint("Horizontal", 2),
    Sketcher.Constraint("DistanceX", 2, 1, 2, 2, 20.0),
    Sketcher.Constraint("DistanceX", -1, 1, 0, 2, 28.0),
    Sketcher.Constraint("DistanceY", -1, 1, 1, 2, 2.0),
    Sketcher.Constraint("DistanceY", 1, 2, 1, 1, 45.645898),
])
sketch13.setExpression("Constraints[5]", "Params.sketch13_width")
pad7 = doc.addObject("PartDesign::Pad", "Pad006")
body2.addObject(pad7)
pad7.Profile = sketch13
pad7.setExpression("Length", "Params.pad7_length")
pad7.Reversed = True
pad7.setExpression("TaperAngle", "Params.pad7_taper")
body3 = doc.addObject("PartDesign::Body", "Body002")

# Sketch on XZ plane
sketch14 = doc.addObject("Sketcher::SketchObject", "Sketch013")
body3.addObject(sketch14)
sketch14.AttachmentSupport = (doc.getObject("XZ_Plane002"), [""])
sketch14.MapMode = "FlatFace"
sketch14.AttachmentOffset = App.Placement(Vector(0, 0, 50), App.Rotation())
sketch14.addGeometry([
    Part.LineSegment(Vector(-28, 48, 0), Vector(-48, 2, 0)),
    Part.LineSegment(Vector(-48, 2, 0), Vector(-28, 2, 0)),
    Part.LineSegment(Vector(-28, 2, 0), Vector(-28, 48, 0)),
], False)
sketch14.addConstraint([
    Sketcher.Constraint("Coincident", 0, 2, 1, 1),
    Sketcher.Constraint("Coincident", 1, 2, 2, 1),
    Sketcher.Constraint("Coincident", 2, 2, 0, 1),
    Sketcher.Constraint("Horizontal", 1),
    Sketcher.Constraint("Vertical", 2),
    Sketcher.Constraint("DistanceX", 1, 1, 1, 2, 20.0),
    Sketcher.Constraint("DistanceX", 0, 2, -1, 1, 48.0),
    Sketcher.Constraint("DistanceY", -1, 1, 0, 2, 2.0),
    Sketcher.Constraint("DistanceY", 2, 1, 2, 2, 45.645898),
])
sketch14.setExpression("Constraints[5]", "Params.sketch14_width")
pad8 = doc.addObject("PartDesign::Pad", "Pad007")
body3.addObject(pad8)
pad8.Profile = sketch14
pad8.setExpression("Length", "Params.pad8_length")
pad8.Reversed = True
pad8.setExpression("TaperAngle", "Params.pad8_taper")
doc.recompute()

boolean = doc.addObject("PartDesign::Boolean", "Boolean")
body.addObject(boolean)
boolean.Type = "Fuse"
boolean.addObjects([body2])

# Sketch on YZ plane
sketch15 = doc.addObject("Sketcher::SketchObject", "Sketch014")
body.addObject(sketch15)
sketch15.AttachmentSupport = (doc.YZ_Plane, [""])
sketch15.MapMode = "FlatFace"
sketch15.AttachmentOffset = App.Placement(Vector(0, 0, 28), App.Rotation())
sketch15.addGeometry([
    Part.LineSegment(Vector(-48, 2, 0), Vector(-32, 2, 0)),
    Part.LineSegment(Vector(-32, 2, 0), Vector(-45.6, 51.9, 0)),
    Part.ArcOfCircle(Part.Circle(Vector(-49, 51, 0), Vector(0, 0, 1), 3.5), math.radians(-73), math.radians(15)),
    Part.LineSegment(Vector(-48, 47.6, 0), Vector(-48, 2, 0)),
], False)
sketch15.addConstraint([
    Sketcher.Constraint("Coincident", 0, 2, 1, 1),
    Sketcher.Constraint("Tangent", 1, 2, 2, 2),
    Sketcher.Constraint("Coincident", 2, 1, 3, 1),
    Sketcher.Constraint("Coincident", 3, 2, 0, 1),
    Sketcher.Constraint("Horizontal", 0),
    Sketcher.Constraint("Vertical", 3),
    Sketcher.Constraint("Radius", 2, 3.5),
    Sketcher.Constraint("DistanceX", 0, 1, 0, 2, 16.0),
    Sketcher.Constraint("DistanceX", 2, 3, -1, 1, 49.0),
    Sketcher.Constraint("DistanceY", -1, 1, 2, 3, 51.0),
    Sketcher.Constraint("DistanceX", 0, 2, -1, 1, 32.0),
    Sketcher.Constraint("DistanceY", -1, 1, 0, 2, 2.0),
])
sketch15.setExpression("Constraints[6]", "Params.sketch15_radius")
sketch15.setExpression("Constraints[7]", "Params.sketch15_width")
pad9 = doc.addObject("PartDesign::Pad", "Pad008")
body.addObject(pad9)
pad9.Profile = sketch15
pad9.setExpression("Length", "Params.pad9_length")
pad9.Reversed = True
doc.recompute()

boolean2 = doc.addObject("PartDesign::Boolean", "Boolean001")
body.addObject(boolean2)
boolean2.Type = "Fuse"
boolean2.addObjects([body3])

# Sketch on YZ plane
sketch16 = doc.addObject("Sketcher::SketchObject", "Sketch015")
body.addObject(sketch16)
sketch16.AttachmentSupport = (doc.YZ_Plane, [""])
sketch16.MapMode = "FlatFace"
sketch16.AttachmentOffset = App.Placement(Vector(0, 0, -28), App.Rotation())
sketch16.addGeometry([
    Part.LineSegment(Vector(-45.6, 51.9, 0), Vector(-41.7, 37.4, 0)),  # 0
    Part.LineSegment(Vector(-41.7, 37.4, 0), Vector(-44.1, 33.9, 0)),  # 1
    Part.ArcOfCircle(Part.Circle(Vector(-42, 32.5, 0), Vector(0, 0, 1), 2.5), math.radians(145), math.radians(180)),  # 2
    Part.ArcOfCircle(Part.Circle(Vector(-42, 32.5, 0), Vector(0, 0, 1), 2.5), math.radians(180), math.radians(326)),  # 3
    Part.LineSegment(Vector(-39.9, 31.1, 0), Vector(-32, 2, 0)),  # 4
    Part.LineSegment(Vector(-32, 2, 0), Vector(-48, 2, 0)),  # 5
    Part.LineSegment(Vector(-48, 2, 0), Vector(-48, 47.6, 0)),  # 6
    Part.ArcOfCircle(Part.Circle(Vector(-49, 51, 0), Vector(0, 0, 1), 3.5), math.radians(-73), math.radians(15)),  # 7
    Part.Circle(Vector(-42, 4.5, 0), Vector(0, 0, 1), 2.5),  # 8
], False)
sketch16.addConstraint([
    Sketcher.Constraint("Coincident", 0, 2, 1, 1),
    Sketcher.Constraint("Tangent", 1, 2, 2, 1),
    Sketcher.Constraint("Tangent", 2, 2, 3, 1),
    Sketcher.Constraint("Coincident", 3, 2, 4, 1),
    Sketcher.Constraint("Coincident", 4, 2, 5, 1),
    Sketcher.Constraint("Coincident", 5, 2, 6, 1),
    Sketcher.Constraint("Coincident", 6, 2, 7, 1),
    Sketcher.Constraint("Tangent", 7, 2, 0, 1),
    Sketcher.Constraint("Horizontal", 5),
    Sketcher.Constraint("Vertical", 6),
    Sketcher.Constraint("Equal", 2, 3),
    Sketcher.Constraint("Parallel", 0, 4),
    Sketcher.Constraint("Horizontal", 3, 3, 2, 2),
    Sketcher.Constraint("Vertical", 3, 3, 8, 3),
    Sketcher.Constraint("Diameter", 8, 4.9),
    Sketcher.Constraint("Radius", 2, 2.5),
    Sketcher.Constraint("Radius", 7, 3.5),
    Sketcher.Constraint("DistanceX", 5, 2, 5, 1, 16.0),
    Sketcher.Constraint("DistanceX", 2, 3, -1, 1, 42.0),
    Sketcher.Constraint("DistanceX", 7, 3, -1, 1, 49.0),
    Sketcher.Constraint("DistanceY", -1, 1, 7, 3, 51.0),
    Sketcher.Constraint("DistanceX", 4, 2, -1, 1, 32.0),
    Sketcher.Constraint("DistanceY", -1, 1, 4, 2, 2.0),
    Sketcher.Constraint("DistanceY", -1, 1, 8, 3, 4.5),
    Sketcher.Constraint("Distance", 4, 30.1308),
    Sketcher.Constraint("DistanceX", 1, 2, 3, 2, 4.1238),
    Sketcher.Constraint("DistanceY", -1, 1, 2, 3, 32.473441),
])
sketch16.setExpression("Constraints[14]", "Params.sketch16_diameter")
sketch16.setExpression("Constraints[15]", "Params.sketch16_radius")
sketch16.setExpression("Constraints[16]", "Params.sketch16_radius2")
sketch16.setExpression("Constraints[17]", "Params.sketch16_width")
pad10 = doc.addObject("PartDesign::Pad", "Pad009")
body.addObject(pad10)
pad10.Profile = sketch16
pad10.setExpression("Length", "Params.pad10_length")

doc.recompute()
